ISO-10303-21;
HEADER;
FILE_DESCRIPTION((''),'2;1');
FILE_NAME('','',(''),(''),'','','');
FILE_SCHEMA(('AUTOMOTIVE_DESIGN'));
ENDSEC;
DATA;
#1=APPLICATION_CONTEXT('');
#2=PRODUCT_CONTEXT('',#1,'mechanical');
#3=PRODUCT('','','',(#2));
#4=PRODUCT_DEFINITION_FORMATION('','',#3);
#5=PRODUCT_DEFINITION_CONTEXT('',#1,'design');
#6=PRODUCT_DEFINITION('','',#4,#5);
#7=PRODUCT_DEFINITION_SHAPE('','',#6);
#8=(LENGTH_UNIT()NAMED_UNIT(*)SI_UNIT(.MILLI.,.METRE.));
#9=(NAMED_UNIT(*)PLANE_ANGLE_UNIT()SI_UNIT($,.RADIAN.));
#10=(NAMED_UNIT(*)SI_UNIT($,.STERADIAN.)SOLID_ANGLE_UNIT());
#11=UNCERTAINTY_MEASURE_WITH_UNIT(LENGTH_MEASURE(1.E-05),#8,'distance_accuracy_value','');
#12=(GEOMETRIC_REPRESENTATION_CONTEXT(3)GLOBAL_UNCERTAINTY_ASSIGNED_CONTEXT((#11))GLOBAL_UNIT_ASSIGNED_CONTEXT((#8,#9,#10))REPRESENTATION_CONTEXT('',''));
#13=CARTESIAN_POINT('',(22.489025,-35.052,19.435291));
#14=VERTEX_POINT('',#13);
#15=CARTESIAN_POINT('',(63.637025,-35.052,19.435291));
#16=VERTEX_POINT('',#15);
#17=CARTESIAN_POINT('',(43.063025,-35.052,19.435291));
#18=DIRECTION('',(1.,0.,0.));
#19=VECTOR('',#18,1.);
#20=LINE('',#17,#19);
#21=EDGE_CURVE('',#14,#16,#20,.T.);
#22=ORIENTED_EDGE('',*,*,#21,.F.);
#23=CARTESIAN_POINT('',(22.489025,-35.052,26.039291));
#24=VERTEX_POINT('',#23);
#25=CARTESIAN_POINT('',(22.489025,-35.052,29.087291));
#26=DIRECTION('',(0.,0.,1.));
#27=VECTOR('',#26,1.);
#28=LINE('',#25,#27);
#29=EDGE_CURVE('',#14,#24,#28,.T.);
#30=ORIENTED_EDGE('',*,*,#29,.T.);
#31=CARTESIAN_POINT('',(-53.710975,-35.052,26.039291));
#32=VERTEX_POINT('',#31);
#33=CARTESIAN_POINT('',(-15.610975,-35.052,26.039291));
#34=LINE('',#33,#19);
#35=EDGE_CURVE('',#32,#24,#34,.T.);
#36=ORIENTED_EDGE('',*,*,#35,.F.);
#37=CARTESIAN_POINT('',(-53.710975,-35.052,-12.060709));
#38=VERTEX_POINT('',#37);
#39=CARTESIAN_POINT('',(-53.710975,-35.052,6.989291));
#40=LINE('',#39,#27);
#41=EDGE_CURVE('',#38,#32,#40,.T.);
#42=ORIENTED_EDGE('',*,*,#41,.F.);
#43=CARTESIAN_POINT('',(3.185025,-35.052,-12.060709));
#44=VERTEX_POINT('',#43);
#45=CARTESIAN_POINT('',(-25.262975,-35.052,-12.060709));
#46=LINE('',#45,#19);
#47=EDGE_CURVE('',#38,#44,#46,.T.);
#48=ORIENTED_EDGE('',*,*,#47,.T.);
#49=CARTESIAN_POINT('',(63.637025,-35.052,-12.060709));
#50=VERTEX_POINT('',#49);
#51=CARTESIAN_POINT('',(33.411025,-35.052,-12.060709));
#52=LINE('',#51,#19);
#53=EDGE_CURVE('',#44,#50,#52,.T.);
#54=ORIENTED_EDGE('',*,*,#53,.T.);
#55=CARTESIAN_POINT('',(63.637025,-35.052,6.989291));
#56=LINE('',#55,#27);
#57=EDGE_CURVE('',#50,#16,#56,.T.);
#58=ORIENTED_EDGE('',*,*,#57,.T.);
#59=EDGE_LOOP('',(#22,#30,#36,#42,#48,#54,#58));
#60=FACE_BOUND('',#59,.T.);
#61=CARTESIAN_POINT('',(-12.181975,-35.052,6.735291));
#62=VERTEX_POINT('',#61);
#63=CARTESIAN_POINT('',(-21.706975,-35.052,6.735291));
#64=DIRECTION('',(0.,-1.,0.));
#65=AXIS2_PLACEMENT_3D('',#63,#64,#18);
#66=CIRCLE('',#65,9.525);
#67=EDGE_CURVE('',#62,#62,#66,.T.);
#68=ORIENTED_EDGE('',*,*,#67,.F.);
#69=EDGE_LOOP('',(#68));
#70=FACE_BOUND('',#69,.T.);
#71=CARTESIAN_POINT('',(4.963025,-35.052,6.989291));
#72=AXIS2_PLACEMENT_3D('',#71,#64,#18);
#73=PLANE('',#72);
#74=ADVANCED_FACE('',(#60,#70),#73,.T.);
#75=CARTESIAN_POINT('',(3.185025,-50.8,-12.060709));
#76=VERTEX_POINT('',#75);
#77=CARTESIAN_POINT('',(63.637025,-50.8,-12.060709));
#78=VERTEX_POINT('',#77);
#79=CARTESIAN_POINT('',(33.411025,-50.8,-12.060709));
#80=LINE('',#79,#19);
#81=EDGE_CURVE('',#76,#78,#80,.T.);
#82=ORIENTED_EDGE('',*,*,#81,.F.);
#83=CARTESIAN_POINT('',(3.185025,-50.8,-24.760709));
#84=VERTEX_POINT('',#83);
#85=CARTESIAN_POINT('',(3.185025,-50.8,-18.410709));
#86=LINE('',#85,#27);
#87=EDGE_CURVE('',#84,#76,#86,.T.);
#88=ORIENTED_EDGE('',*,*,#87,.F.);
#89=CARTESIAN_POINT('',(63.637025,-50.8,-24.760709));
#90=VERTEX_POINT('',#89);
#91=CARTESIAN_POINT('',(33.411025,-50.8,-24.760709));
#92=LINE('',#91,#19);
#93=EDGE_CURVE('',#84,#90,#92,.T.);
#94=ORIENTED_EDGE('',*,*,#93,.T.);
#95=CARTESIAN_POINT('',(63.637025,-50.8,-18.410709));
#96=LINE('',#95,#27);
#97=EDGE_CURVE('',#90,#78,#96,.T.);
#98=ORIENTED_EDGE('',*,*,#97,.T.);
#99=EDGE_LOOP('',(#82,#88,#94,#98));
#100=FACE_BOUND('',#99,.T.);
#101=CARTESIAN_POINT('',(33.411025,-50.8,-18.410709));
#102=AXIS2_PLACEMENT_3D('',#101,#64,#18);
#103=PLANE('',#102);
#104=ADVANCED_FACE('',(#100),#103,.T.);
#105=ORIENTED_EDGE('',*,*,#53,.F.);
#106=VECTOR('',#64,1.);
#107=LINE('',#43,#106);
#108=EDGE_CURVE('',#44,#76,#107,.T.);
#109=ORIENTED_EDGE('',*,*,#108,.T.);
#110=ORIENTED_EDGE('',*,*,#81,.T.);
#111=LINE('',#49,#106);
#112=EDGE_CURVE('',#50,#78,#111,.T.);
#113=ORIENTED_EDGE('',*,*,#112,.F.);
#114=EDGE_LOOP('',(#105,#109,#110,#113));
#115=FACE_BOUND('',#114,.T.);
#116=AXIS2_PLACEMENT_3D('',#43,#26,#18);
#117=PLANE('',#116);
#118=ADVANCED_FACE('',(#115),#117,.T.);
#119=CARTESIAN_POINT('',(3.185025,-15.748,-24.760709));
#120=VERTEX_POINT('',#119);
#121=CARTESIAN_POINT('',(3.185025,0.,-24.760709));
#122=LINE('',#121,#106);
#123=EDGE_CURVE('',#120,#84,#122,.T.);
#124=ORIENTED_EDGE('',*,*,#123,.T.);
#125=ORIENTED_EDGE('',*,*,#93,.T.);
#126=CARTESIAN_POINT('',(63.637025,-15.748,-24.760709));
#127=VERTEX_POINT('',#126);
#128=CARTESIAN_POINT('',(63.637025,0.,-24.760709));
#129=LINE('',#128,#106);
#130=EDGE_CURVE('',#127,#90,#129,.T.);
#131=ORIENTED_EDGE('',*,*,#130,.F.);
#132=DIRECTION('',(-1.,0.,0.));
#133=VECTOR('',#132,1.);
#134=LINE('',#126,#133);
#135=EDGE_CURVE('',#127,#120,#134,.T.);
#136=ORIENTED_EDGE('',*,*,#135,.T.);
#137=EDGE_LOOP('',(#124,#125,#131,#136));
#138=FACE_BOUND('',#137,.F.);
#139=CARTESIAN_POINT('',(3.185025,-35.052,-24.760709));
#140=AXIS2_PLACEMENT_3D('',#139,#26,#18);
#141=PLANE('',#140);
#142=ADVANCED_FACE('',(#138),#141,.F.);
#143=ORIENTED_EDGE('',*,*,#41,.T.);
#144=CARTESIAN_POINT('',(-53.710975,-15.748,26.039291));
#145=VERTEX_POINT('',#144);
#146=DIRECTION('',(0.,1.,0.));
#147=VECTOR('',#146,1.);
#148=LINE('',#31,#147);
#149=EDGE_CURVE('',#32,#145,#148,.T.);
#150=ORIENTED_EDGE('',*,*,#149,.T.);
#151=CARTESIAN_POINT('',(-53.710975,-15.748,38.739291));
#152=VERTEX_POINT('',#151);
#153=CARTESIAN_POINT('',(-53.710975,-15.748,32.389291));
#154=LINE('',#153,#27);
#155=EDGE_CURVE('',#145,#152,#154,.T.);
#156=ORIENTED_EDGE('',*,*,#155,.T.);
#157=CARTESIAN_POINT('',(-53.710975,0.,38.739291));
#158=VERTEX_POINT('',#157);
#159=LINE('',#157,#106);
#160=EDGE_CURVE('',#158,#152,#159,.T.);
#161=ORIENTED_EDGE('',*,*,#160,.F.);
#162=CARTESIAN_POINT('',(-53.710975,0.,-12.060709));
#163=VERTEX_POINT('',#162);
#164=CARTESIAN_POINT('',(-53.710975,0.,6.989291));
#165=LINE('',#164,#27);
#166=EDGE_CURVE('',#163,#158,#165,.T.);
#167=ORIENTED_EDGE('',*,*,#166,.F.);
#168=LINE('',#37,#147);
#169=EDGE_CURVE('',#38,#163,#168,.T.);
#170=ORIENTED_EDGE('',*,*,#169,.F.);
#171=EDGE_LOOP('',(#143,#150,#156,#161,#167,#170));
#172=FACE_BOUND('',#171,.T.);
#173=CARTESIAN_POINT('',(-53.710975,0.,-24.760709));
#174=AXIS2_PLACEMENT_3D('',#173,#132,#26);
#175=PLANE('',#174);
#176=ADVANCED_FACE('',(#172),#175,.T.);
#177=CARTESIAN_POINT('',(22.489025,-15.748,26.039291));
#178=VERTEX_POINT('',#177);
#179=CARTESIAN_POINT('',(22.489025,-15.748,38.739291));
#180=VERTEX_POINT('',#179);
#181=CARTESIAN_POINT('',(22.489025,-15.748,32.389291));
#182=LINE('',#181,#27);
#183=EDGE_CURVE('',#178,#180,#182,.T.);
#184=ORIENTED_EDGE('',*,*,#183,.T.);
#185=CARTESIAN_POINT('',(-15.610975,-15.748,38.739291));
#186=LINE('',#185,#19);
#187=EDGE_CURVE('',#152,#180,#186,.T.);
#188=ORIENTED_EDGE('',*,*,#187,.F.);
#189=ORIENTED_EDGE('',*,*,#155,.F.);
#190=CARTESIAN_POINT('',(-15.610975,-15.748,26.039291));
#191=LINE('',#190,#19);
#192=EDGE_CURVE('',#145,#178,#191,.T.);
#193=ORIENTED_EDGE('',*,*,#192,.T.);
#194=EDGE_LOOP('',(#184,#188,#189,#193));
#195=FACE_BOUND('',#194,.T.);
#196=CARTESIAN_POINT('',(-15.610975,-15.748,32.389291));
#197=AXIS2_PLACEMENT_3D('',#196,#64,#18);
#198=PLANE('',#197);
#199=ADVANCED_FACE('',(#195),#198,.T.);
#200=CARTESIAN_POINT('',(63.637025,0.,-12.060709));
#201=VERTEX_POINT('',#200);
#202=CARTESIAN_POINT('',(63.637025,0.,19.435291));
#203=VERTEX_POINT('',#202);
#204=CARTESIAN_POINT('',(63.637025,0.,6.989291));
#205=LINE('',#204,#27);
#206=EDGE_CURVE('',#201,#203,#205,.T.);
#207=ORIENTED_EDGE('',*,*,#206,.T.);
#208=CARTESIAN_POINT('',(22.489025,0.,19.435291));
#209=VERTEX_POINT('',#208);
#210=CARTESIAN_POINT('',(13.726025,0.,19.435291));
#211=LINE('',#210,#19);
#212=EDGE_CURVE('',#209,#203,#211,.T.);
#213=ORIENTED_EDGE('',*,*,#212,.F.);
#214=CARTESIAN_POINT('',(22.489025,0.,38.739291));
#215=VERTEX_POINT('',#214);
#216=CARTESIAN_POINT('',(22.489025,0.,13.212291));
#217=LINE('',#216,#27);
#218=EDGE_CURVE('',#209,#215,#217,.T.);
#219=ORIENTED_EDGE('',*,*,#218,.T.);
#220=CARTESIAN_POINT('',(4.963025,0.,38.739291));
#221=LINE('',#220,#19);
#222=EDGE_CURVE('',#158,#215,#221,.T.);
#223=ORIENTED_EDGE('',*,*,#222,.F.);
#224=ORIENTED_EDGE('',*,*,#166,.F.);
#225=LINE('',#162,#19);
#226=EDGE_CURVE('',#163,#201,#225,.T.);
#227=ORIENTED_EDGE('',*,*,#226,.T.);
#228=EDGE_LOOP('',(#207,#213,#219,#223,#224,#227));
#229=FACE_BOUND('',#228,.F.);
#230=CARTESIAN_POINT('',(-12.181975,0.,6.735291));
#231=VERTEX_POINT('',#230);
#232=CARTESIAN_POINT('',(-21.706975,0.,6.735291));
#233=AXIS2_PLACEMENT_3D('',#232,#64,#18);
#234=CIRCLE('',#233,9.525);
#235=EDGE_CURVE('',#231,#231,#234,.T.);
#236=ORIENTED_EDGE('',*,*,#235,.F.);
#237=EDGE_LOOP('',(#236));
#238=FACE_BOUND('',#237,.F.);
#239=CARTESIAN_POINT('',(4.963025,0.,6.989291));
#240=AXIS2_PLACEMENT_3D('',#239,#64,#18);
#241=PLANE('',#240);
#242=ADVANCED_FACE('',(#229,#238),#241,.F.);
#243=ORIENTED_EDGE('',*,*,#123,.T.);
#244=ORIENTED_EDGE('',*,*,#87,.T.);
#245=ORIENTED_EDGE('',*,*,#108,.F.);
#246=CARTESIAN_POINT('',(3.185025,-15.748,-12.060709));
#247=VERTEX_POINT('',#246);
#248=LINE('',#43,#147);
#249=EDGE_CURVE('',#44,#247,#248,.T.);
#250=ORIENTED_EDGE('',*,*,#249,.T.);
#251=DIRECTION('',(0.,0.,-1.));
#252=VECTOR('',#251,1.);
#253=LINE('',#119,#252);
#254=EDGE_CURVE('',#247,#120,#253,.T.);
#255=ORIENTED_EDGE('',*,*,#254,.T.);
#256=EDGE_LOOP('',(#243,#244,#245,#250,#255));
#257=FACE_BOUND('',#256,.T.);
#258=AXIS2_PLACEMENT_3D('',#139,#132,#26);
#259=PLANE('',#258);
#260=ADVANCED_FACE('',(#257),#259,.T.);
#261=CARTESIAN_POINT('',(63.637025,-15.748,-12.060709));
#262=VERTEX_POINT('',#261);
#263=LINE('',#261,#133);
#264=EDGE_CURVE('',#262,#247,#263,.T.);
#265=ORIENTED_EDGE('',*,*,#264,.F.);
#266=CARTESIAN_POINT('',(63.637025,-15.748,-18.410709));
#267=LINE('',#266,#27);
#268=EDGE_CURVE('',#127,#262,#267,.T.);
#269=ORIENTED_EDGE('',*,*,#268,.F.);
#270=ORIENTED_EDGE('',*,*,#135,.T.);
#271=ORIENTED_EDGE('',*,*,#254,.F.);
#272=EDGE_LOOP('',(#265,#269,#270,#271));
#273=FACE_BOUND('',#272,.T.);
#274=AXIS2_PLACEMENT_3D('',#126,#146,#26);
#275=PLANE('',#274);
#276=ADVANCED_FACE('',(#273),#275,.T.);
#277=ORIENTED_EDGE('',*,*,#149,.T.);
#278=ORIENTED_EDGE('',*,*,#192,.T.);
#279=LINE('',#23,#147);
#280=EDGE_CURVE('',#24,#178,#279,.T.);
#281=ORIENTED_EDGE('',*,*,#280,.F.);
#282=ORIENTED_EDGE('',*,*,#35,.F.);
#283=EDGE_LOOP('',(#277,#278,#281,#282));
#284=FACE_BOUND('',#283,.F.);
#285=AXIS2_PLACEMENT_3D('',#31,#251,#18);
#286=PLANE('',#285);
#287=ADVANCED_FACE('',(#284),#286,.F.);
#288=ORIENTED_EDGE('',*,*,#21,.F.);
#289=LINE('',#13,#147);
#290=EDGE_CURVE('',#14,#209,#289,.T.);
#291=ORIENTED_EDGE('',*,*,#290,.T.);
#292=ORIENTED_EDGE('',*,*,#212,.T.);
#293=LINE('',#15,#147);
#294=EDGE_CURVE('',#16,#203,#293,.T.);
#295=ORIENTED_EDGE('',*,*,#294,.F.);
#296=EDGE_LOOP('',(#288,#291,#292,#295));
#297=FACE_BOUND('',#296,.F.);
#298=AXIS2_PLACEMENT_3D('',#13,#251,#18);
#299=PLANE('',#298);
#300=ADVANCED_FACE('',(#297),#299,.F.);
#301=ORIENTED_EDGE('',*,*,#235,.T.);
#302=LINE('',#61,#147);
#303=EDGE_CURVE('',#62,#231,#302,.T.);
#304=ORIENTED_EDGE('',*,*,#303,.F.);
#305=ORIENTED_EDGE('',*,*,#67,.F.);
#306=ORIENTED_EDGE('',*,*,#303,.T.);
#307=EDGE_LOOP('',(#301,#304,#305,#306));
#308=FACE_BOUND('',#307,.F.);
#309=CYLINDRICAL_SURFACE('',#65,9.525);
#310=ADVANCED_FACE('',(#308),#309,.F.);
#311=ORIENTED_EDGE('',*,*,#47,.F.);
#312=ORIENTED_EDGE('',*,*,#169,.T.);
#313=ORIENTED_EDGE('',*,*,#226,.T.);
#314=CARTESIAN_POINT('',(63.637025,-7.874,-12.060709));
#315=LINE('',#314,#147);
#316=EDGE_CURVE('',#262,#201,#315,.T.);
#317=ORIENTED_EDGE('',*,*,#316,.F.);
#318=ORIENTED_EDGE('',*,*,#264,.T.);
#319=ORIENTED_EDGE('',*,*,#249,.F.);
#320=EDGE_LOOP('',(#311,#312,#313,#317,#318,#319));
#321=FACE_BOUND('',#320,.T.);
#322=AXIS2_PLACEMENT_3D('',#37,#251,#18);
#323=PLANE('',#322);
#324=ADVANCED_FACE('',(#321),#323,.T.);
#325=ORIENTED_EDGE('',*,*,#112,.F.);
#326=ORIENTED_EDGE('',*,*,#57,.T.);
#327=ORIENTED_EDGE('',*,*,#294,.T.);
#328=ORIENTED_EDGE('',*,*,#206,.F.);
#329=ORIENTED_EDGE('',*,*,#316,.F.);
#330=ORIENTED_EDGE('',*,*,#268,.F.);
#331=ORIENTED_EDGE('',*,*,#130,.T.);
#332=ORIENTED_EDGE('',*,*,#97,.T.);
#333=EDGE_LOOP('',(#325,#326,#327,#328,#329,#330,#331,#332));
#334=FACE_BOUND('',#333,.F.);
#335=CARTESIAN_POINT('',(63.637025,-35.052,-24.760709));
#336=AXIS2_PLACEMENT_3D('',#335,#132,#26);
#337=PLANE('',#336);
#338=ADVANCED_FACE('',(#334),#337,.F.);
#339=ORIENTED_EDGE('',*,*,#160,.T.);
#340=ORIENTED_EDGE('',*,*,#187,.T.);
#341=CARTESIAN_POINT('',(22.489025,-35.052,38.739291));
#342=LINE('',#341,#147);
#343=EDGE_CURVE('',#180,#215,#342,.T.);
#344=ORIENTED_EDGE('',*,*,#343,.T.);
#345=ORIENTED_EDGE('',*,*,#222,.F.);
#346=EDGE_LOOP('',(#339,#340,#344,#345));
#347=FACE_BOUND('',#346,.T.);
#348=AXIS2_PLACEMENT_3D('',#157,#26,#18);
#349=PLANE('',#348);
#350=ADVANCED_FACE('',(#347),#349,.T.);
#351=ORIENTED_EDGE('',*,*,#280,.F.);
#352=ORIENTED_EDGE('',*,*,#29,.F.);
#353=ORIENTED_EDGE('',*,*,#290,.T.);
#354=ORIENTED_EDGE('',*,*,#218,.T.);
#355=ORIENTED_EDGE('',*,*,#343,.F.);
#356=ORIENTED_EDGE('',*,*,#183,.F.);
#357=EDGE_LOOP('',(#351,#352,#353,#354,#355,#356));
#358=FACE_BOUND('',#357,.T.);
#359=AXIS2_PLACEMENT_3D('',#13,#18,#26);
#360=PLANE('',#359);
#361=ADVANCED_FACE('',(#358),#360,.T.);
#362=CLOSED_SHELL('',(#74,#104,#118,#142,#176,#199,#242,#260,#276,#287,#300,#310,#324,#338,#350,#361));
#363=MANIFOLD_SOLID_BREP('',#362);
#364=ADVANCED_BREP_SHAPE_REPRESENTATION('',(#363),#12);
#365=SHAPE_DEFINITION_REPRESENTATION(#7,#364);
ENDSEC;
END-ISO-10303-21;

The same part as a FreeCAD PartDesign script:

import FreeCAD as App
import Part
import Sketcher

V = App.Vector
Q = App.Units.Quantity


def add_polygon(sketch, points):
    """Adds a closed chain of lines whose ends are joined by coincident constraints."""
    first, n = sketch.GeometryCount, len(points)
    for a, b in zip(points, points[1:] + points[:1]):
        sketch.addGeometry(Part.LineSegment(App.Vector(*a, 0), App.Vector(*b, 0)), False)
    for i in range(n):
        sketch.addConstraint(Sketcher.Constraint("Coincident", first + i, 2, first + (i + 1) % n, 1))

doc = App.newDocument("Part")
body = doc.addObject("PartDesign::Body", "Body")

# Sketch on XZ plane
sketch1 = body.newObject("Sketcher::SketchObject", "Sketch")
sketch1.AttachmentSupport = (doc.getObject("XZ_Plane"), [""])
sketch1.MapMode = "FlatFace"
add_polygon(sketch1, [(-53.710975, 38.739291), (-53.710975, -24.760709), (63.637025, -24.760709), (63.637025, 38.739291)])  # lines 0-3
sketch1.addConstraint([
    Sketcher.Constraint("Vertical", 0),
    Sketcher.Constraint("Horizontal", 1),
    Sketcher.Constraint("Vertical", 2),
    Sketcher.Constraint("Horizontal", 3),
    Sketcher.Constraint("DistanceY", 0, 2, 0, 1, Q("2.5 in")),
    Sketcher.Constraint("DistanceX", 1, 1, 1, 2, Q("4.62 in")),
    Sketcher.Constraint("DistanceY", 0, 2, -1, 1, Q("24.760709 mm")),
    Sketcher.Constraint("DistanceX", 0, 2, -1, 1, Q("53.710975 mm")),
])
pad1 = body.newObject("PartDesign::Pad", "Pad")
pad1.Profile = sketch1
pad1.Length = Q("1.38 in")

# Sketch on XZ plane
sketch2 = body.newObject("Sketcher::SketchObject", "Sketch001")
sketch2.AttachmentSupport = (doc.getObject("XZ_Plane"), [""])
sketch2.MapMode = "FlatFace"
sketch2.AttachmentOffset = App.Placement(V(0, 0, 1.38 * 25.4), App.Rotation())
add_polygon(sketch2, [(3.185025, -12.060709), (3.185025, -24.760709), (63.637025, -24.760709), (63.637025, -12.060709)])  # lines 0-3
sketch2.addConstraint([
    Sketcher.Constraint("Vertical", 0),
    Sketcher.Constraint("Horizontal", 1),
    Sketcher.Constraint("Vertical", 2),
    Sketcher.Constraint("Horizontal", 3),
    Sketcher.Constraint("DistanceY", 0, 2, 0, 1, Q("0.5 in")),
    Sketcher.Constraint("DistanceX", 1, 1, 1, 2, Q("2.38 in")),
    Sketcher.Constraint("DistanceY", 0, 2, -1, 1, Q("24.760709 mm")),
    Sketcher.Constraint("DistanceX", -1, 1, 0, 2, Q("3.185025 mm")),
])
pad2 = body.newObject("PartDesign::Pad", "Pad001")
pad2.Profile = sketch2
pad2.Length = Q("0.62 in")

# Sketch on XZ plane
sketch3 = body.newObject("Sketcher::SketchObject", "Sketch002")
sketch3.AttachmentSupport = (doc.getObject("XZ_Plane"), [""])
sketch3.MapMode = "FlatFace"
sketch3.AttachmentOffset = App.Placement(V(0, 0, 1.38 * 25.4), App.Rotation())
add_polygon(sketch3, [(-53.710975, -12.060709), (-53.710975, -24.760709), (3.185025, -24.760709), (3.185025, -12.060709)])  # lines 0-3
sketch3.addConstraint([
    Sketcher.Constraint("Vertical", 0),
    Sketcher.Constraint("Horizontal", 1),
    Sketcher.Constraint("Vertical", 2),
    Sketcher.Constraint("Horizontal", 3),
    Sketcher.Constraint("DistanceY", 0, 2, 0, 1, Q("0.5 in")),
    Sketcher.Constraint("DistanceX", 1, 1, 1, 2, Q("2.24 in")),
    Sketcher.Constraint("DistanceY", 0, 2, -1, 1, Q("24.760709 mm")),
    Sketcher.Constraint("DistanceX", 0, 2, -1, 1, Q("53.710975 mm")),
])
pocket1 = body.newObject("PartDesign::Pocket", "Pocket")
pocket1.Profile = sketch3
pocket1.Type = "ThroughAll"

# Sketch on XZ plane
sketch4 = body.newObject("Sketcher::SketchObject", "Sketch003")
sketch4.AttachmentSupport = (doc.getObject("XZ_Plane"), [""])
sketch4.MapMode = "FlatFace"
sketch4.AttachmentOffset = App.Placement(V(0, 0, 1.38 * 25.4), App.Rotation())
add_polygon(sketch4, [(-53.710975, 38.739291), (-53.710975, 26.039291), (22.489025, 26.039291), (22.489025, 38.739291)])  # lines 0-3
sketch4.addConstraint([
    Sketcher.Constraint("Vertical", 0),
    Sketcher.Constraint("Horizontal", 1),
    Sketcher.Constraint("Vertical", 2),
    Sketcher.Constraint("Horizontal", 3),
    Sketcher.Constraint("DistanceX", 1, 1, 1, 2, Q("3 in")),
    Sketcher.Constraint("DistanceY", 0, 2, 0, 1, Q("0.5 in")),
    Sketcher.Constraint("DistanceY", -1, 1, 0, 2, Q("26.039291 mm")),
    Sketcher.Constraint("DistanceX", 0, 2, -1, 1, Q("53.710975 mm")),
])
pocket2 = body.newObject("PartDesign::Pocket", "Pocket001")
pocket2.Profile = sketch4
pocket2.Length = Q("0.76 in")

# Sketch on XZ plane
sketch5 = body.newObject("Sketcher::SketchObject", "Sketch004")
sketch5.AttachmentSupport = (doc.getObject("XZ_Plane"), [""])
sketch5.MapMode = "FlatFace"
sketch5.AttachmentOffset = App.Placement(V(0, 0, 1.38 * 25.4), App.Rotation())
add_polygon(sketch5, [(22.489025, 38.739291), (22.489025, 19.435291), (63.637025, 19.435291), (63.637025, 38.739291)])  # lines 0-3
sketch5.addConstraint([
    Sketcher.Constraint("Vertical", 0),
    Sketcher.Constraint("Horizontal", 1),
    Sketcher.Constraint("Vertical", 2),
    Sketcher.Constraint("Horizontal", 3),
    Sketcher.Constraint("DistanceX", 1, 1, 1, 2, Q("1.62 in")),
    Sketcher.Constraint("DistanceY", 0, 2, 0, 1, Q("0.76 in")),
    Sketcher.Constraint("DistanceY", -1, 1, 0, 2, Q("19.435291 mm")),
    Sketcher.Constraint("DistanceX", -1, 1, 0, 2, Q("22.489025 mm")),
])
pocket3 = body.newObject("PartDesign::Pocket", "Pocket002")
pocket3.Profile = sketch5
pocket3.Type = "ThroughAll"

# Sketch on YZ plane
sketch6 = body.newObject("Sketcher::SketchObject", "Sketch005")
sketch6.AttachmentSupport = (doc.getObject("YZ_Plane"), [""])
sketch6.MapMode = "FlatFace"
sketch6.AttachmentOffset = App.Placement(V(0, 0, 63.637025), App.Rotation())
add_polygon(sketch6, [(-15.748, -12.060709), (-15.748, -24.760709), (0, -24.760709), (0, -12.060709)])  # lines 0-3
sketch6.addConstraint([
    Sketcher.Constraint("Vertical", 0),
    Sketcher.Constraint("Horizontal", 1),
    Sketcher.Constraint("Vertical", 2),
    Sketcher.Constraint("Horizontal", 3),
    Sketcher.Constraint("PointOnObject", 1, 2, -2),
    Sketcher.Constraint("DistanceY", 0, 2, 0, 1, Q("0.5 in")),
    Sketcher.Constraint("DistanceX", 1, 1, 1, 2, Q("0.62 in")),
    Sketcher.Constraint("DistanceY", 0, 2, -1, 1, Q("24.760709 mm")),
])
pocket4 = body.newObject("PartDesign::Pocket", "Pocket003")
pocket4.Profile = sketch6
pocket4.Type = "ThroughAll"

# Sketch on XZ plane
sketch7 = body.newObject("Sketcher::SketchObject", "Sketch006")
sketch7.AttachmentSupport = (doc.getObject("XZ_Plane"), [""])
sketch7.MapMode = "FlatFace"
sketch7.AttachmentOffset = App.Placement(V(0, 0, 1.38 * 25.4), App.Rotation())
sketch7.addGeometry(Part.Circle(V(-21.706975, 6.735291, 0), V(0, 0, 1), 9.525), False)
sketch7.addConstraint([
    Sketcher.Constraint("Diameter", 0, Q("0.75 in")),
    Sketcher.Constraint("DistanceY", -1, 1, 0, 3, Q("6.735291 mm")),
    Sketcher.Constraint("DistanceX", 0, 3, -1, 1, Q("21.706975 mm")),
])
pocket5 = body.newObject("PartDesign::Pocket", "Pocket004")
pocket5.Profile = sketch7
pocket5.Type = "ThroughAll"

doc.recompute()
